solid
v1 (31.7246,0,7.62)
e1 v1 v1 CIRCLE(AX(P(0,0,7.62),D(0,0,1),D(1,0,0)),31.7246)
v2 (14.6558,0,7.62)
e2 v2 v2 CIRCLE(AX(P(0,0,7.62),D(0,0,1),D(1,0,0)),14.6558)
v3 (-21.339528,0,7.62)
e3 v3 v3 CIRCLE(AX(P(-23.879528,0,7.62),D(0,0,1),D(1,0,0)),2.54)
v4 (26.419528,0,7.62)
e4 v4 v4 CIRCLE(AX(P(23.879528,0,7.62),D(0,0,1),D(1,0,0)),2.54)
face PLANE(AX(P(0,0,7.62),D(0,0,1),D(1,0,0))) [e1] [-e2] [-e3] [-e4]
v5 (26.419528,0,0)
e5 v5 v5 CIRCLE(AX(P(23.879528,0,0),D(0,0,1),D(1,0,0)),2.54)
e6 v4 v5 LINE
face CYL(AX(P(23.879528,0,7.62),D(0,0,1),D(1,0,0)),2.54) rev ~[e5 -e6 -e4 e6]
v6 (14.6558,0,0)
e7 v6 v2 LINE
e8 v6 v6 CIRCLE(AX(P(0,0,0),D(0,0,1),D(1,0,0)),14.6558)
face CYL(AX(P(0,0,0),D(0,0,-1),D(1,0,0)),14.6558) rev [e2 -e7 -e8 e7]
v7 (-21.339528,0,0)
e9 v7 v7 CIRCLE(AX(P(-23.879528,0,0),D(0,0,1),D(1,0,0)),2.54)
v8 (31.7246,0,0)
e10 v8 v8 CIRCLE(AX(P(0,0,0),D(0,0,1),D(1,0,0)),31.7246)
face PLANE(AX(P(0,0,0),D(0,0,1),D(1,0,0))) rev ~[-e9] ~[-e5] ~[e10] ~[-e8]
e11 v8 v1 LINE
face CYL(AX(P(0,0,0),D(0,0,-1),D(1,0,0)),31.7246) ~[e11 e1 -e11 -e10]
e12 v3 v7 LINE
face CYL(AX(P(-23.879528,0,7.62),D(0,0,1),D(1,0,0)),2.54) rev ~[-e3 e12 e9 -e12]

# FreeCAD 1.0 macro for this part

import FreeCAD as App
import Part
import Sketcher

V = App.Vector
Q = App.Units.Quantity

doc = App.newDocument("Part")
body = doc.addObject("PartDesign::Body", "Body")

# Sketch on XY plane
sketch1 = doc.addObject("Sketcher::SketchObject", "Sketch")
body.addObject(sketch1)
sketch1.AttachmentSupport = (doc.XY_Plane, [""])
sketch1.MapMode = "FlatFace"
sketch1.addGeometry([
    Part.Circle(V(0, 0, 0), V(0, 0, 1), 32),
    Part.Circle(V(0, 0, 0), V(0, 0, 1), 15),
], False)
sketch1.addConstraint([
    Sketcher.Constraint("Coincident", 0, 3, -1, 1),
    Sketcher.Constraint("Coincident", 1, 3, -1, 1),
    Sketcher.Constraint("Diameter", 0, Q("2.498 in")),
    Sketcher.Constraint("Diameter", 1, Q("1.154 in")),
])
pad1 = doc.addObject("PartDesign::Pad", "Pad")
body.addObject(pad1)
pad1.Profile = sketch1
pad1.Length = Q("0.3 in")

# Sketch on XY plane
sketch2 = doc.addObject("Sketcher::SketchObject", "Sketch001")
body.addObject(sketch2)
sketch2.AttachmentSupport = (doc.XY_Plane, [""])
sketch2.MapMode = "FlatFace"
sketch2.AttachmentOffset = App.Placement(V(0, 0, 0.3 * 25.4), App.Rotation())
sketch2.addGeometry([
    Part.Circle(V(-23.9, 0, 0), V(0, 0, 1), 2.5),
    Part.Circle(V(23.9, 0, 0), V(0, 0, 1), 2.5),
], False)
sketch2.addConstraint([
    Sketcher.Constraint("Equal", 0, 1),
    Sketcher.Constraint("Symmetric", 0, 3, 1, 3, -1, 1),
    Sketcher.Constraint("PointOnObject", 0, 3, -1),
    Sketcher.Constraint("Diameter", 0, Q("0.2 in")),
    Sketcher.Constraint("DistanceX", 0, 3, -1, 1, Q("23.879528 mm")),
])
pocket1 = doc.addObject("PartDesign::Pocket", "Pocket")
body.addObject(pocket1)
pocket1.Profile = sketch2
pocket1.Length = Q("0.5 in")

doc.recompute()
